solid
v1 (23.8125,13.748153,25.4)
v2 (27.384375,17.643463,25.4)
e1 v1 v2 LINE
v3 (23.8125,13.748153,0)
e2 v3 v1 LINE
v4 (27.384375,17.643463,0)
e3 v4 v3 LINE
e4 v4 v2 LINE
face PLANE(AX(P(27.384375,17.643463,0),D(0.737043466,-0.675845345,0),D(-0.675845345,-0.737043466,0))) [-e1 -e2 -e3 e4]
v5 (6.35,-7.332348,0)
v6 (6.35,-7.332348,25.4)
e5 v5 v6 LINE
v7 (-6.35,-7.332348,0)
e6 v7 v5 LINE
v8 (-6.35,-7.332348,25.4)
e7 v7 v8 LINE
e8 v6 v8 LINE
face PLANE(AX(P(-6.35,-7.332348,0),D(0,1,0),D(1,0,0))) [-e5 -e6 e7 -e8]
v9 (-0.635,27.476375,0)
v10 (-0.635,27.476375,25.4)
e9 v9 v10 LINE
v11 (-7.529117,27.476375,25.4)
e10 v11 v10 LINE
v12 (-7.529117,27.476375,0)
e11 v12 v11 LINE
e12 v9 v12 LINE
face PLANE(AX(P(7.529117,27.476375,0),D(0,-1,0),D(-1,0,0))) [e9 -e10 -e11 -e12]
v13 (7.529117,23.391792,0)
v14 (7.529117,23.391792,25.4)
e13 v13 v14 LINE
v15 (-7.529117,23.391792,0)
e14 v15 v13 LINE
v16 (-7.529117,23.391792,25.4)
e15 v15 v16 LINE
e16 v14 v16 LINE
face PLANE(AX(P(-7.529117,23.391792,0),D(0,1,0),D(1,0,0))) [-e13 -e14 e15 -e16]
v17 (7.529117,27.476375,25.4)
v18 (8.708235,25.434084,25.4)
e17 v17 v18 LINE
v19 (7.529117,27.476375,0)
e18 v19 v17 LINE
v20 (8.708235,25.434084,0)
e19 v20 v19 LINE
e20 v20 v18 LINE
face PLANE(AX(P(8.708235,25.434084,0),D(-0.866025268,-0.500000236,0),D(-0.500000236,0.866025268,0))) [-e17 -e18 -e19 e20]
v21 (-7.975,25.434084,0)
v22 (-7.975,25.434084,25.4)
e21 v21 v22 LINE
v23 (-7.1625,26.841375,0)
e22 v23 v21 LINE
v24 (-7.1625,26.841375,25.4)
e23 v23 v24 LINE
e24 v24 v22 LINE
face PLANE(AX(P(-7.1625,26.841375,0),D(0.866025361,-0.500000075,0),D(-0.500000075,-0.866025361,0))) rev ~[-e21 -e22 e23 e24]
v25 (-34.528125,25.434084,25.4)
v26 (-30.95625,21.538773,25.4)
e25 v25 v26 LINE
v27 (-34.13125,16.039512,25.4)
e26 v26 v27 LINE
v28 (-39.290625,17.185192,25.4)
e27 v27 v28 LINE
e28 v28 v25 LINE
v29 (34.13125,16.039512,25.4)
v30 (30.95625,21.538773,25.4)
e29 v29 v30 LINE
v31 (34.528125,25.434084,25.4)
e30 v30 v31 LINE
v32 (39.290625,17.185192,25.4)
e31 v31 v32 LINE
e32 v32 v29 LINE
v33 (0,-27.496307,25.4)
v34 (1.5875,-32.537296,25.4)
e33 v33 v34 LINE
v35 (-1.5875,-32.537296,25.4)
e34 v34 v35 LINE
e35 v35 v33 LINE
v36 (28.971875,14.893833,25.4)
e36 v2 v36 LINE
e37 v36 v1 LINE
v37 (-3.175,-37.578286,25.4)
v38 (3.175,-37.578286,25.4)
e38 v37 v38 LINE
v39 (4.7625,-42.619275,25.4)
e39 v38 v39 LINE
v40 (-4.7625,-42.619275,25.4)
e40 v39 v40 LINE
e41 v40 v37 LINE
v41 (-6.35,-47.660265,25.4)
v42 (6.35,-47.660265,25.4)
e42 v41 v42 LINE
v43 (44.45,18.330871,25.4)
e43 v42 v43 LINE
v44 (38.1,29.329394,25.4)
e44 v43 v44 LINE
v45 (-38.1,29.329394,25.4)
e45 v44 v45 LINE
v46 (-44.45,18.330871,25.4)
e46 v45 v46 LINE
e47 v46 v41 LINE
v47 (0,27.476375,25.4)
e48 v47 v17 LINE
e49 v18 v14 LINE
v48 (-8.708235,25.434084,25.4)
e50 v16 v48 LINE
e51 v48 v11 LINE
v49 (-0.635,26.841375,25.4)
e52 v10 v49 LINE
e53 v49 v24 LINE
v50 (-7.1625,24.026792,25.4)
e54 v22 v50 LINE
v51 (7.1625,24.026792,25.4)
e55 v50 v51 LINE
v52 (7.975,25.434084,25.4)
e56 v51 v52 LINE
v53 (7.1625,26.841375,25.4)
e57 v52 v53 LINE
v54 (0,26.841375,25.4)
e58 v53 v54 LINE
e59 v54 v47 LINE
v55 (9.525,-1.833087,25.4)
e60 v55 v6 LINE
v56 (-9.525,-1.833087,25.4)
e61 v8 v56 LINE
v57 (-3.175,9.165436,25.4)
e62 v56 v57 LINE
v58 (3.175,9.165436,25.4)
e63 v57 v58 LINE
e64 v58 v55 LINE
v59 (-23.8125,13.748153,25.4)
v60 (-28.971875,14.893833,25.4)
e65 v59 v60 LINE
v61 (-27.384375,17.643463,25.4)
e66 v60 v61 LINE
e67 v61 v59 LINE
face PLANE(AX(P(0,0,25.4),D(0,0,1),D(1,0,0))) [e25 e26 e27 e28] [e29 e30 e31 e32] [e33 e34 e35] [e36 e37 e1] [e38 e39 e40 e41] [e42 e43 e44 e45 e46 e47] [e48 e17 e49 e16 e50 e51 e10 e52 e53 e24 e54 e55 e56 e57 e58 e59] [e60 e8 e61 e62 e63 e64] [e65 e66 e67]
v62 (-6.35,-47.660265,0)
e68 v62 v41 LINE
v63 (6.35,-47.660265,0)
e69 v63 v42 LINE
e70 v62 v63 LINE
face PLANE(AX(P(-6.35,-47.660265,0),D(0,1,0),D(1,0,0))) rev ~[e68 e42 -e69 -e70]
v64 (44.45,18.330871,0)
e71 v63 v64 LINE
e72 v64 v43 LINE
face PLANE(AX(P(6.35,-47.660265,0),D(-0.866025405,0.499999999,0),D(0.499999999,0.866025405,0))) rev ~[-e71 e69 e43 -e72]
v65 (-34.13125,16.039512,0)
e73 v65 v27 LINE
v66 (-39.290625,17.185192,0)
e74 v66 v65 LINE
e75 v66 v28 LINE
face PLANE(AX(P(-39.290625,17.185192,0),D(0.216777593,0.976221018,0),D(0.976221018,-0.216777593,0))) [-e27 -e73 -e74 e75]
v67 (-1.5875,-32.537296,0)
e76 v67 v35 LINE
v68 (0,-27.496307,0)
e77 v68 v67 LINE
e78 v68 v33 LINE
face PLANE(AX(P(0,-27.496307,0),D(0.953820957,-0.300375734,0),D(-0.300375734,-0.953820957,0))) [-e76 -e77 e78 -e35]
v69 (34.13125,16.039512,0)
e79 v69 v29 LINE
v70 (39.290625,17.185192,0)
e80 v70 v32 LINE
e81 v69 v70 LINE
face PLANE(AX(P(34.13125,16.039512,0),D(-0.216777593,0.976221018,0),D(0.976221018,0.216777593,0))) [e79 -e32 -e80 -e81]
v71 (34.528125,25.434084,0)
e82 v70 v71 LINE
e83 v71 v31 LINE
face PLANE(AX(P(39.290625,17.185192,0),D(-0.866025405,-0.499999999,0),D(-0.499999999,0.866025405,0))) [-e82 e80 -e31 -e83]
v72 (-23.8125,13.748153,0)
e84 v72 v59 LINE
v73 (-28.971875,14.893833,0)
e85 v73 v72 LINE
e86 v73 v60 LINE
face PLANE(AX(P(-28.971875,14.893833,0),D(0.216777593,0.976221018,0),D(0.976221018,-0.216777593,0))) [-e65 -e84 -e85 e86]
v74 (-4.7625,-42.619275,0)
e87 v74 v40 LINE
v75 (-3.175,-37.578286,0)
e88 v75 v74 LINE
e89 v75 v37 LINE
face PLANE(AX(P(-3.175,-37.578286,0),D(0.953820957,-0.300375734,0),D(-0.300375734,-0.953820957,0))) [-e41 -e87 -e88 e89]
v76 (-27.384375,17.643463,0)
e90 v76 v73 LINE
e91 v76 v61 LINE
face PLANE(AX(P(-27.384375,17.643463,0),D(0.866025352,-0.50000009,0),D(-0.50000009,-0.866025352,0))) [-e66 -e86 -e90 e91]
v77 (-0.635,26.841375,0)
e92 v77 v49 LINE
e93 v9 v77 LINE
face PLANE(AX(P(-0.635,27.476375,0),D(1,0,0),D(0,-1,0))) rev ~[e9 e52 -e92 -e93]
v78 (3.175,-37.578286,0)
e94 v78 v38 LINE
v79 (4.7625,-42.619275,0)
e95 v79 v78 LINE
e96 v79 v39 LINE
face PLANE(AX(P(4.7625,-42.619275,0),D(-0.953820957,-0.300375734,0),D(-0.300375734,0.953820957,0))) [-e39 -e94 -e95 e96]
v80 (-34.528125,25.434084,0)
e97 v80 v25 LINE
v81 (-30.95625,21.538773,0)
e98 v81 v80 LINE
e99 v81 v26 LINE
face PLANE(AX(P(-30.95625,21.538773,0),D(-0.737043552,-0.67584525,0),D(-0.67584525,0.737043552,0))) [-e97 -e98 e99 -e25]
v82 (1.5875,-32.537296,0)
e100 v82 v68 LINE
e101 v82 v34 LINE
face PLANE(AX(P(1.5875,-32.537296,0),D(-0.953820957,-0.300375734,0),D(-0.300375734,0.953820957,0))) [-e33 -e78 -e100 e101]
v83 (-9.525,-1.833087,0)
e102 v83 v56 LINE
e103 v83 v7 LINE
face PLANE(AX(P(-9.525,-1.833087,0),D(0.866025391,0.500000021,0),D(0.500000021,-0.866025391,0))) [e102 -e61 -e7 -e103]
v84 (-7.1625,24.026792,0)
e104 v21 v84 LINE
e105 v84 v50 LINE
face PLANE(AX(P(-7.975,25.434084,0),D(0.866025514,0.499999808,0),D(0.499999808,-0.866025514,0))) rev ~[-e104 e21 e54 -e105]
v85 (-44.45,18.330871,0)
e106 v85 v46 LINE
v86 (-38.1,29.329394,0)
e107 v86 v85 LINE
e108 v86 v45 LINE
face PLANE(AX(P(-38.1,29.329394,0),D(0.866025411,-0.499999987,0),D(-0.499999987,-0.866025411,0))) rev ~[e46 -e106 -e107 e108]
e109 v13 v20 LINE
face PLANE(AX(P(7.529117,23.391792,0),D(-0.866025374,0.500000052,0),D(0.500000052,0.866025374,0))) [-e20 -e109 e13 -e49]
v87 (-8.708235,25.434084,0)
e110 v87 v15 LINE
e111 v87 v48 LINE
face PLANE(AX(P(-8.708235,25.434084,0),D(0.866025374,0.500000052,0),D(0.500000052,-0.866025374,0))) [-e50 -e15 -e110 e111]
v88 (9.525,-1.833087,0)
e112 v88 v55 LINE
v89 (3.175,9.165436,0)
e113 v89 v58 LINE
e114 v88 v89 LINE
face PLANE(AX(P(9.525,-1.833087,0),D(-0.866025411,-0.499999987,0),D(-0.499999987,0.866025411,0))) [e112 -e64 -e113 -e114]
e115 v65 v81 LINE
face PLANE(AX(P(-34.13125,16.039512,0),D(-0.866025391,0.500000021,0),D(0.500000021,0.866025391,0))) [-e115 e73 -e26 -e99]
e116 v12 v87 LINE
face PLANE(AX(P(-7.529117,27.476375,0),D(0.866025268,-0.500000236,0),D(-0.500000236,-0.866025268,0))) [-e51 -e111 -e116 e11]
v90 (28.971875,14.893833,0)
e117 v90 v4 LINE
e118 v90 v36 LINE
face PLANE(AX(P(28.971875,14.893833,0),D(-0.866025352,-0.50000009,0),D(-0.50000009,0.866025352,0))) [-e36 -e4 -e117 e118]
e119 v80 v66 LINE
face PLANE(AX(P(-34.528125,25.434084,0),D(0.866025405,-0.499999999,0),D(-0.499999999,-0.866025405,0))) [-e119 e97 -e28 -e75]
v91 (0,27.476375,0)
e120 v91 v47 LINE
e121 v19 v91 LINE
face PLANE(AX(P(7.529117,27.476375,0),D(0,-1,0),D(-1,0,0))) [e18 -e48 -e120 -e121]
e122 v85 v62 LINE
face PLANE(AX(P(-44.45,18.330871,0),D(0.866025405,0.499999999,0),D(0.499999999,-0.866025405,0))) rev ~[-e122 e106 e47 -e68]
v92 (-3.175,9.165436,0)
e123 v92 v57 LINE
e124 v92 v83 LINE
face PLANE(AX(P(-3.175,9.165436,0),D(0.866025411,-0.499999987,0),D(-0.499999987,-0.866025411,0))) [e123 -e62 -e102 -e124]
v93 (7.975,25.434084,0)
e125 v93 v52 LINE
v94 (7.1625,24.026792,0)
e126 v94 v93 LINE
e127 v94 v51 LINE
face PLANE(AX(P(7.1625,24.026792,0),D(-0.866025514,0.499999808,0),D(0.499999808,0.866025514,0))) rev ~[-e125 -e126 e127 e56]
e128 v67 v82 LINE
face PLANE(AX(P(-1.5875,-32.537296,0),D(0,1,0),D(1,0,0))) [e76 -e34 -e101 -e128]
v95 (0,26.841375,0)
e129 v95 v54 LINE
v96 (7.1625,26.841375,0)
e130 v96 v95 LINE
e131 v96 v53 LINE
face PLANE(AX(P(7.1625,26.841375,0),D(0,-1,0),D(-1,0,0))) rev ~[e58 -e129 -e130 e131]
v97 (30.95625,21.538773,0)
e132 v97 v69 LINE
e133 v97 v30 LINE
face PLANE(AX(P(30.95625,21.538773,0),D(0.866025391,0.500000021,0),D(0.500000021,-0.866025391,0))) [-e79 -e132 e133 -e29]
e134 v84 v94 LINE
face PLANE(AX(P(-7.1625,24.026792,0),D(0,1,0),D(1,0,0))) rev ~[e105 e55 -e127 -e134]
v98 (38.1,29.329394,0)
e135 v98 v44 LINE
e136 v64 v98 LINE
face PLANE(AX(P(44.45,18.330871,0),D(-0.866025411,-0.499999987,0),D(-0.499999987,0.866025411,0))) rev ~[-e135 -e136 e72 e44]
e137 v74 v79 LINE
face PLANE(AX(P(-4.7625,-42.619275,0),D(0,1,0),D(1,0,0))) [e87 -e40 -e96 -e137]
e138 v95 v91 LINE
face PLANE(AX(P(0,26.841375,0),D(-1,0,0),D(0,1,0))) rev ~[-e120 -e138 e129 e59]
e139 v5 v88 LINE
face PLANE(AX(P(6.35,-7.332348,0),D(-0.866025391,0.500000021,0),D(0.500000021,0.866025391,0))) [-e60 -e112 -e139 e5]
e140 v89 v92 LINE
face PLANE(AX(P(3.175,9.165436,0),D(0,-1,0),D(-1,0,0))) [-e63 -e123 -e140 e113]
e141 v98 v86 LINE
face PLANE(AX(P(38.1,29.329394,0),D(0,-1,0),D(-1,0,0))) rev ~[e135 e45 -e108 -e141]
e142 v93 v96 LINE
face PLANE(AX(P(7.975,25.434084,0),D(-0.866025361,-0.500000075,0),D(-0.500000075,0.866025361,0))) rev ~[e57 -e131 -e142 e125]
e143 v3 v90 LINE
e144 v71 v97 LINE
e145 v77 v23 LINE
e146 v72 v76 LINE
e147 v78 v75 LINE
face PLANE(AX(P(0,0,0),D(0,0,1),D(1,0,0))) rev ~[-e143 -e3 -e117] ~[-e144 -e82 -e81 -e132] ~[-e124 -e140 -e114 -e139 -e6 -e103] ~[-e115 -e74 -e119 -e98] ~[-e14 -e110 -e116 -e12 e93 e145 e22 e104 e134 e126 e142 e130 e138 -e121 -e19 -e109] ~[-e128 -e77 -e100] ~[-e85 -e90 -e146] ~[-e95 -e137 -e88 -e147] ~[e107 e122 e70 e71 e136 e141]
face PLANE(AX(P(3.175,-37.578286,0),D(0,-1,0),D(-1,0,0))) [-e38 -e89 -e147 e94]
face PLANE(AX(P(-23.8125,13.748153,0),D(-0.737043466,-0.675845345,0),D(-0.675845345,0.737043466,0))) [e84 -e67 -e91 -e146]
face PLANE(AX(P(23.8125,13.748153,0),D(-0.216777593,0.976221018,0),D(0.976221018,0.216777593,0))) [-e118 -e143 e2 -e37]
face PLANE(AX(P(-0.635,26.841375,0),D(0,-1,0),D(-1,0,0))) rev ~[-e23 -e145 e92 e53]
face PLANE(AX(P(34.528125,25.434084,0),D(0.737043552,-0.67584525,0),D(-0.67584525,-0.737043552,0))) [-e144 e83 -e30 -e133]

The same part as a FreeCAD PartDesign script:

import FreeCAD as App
import Part
import Sketcher

V = App.Vector
Q = App.Units.Quantity


def add_polygon(sketch, points):
    """Adds a closed chain of lines whose ends are joined by coincident constraints."""
    first, n = sketch.GeometryCount, len(points)
    for a, b in zip(points, points[1:] + points[:1]):
        sketch.addGeometry(Part.LineSegment(App.Vector(*a, 0), App.Vector(*b, 0)), False)
    for i in range(n):
        sketch.addConstraint(Sketcher.Constraint("Coincident", first + i, 2, first + (i + 1) % n, 1))

doc = App.newDocument("Part")
body = doc.addObject("PartDesign::Body", "Body")

sketch1 = body.newObject("Sketcher::SketchObject", "Sketch")
sketch1.AttachmentSupport = (doc.getObject("XY_Plane"), [""])
sketch1.MapMode = "FlatFace"
add_polygon(sketch1, [(38, 29), (-38, 29), (-44, 18), (-6, -48), (6, -48), (44, 18)])
sketch1.addConstraint([
    Sketcher.Constraint("Horizontal", 0),
    Sketcher.Constraint("Horizontal", 3),
    Sketcher.Constraint("Symmetric", 1, 2, 4, 2, -2),
    Sketcher.Constraint("Parallel", 1, 4),
    Sketcher.Constraint("Parallel", 2, 5),
    Sketcher.Constraint("Equal", 2, 4),
    Sketcher.Constraint("DistanceX", 0, 2, 0, 1, Q("3 in")),
    Sketcher.Constraint("Distance", 2, Q("3 in")),
    Sketcher.Constraint("DistanceX", 3, 1, 3, 2, Q("0.5 in")),
    Sketcher.Constraint("Angle", 1, Q("-119.999999 deg")),
    Sketcher.Constraint("DistanceY", -1, 1, 1, 2, 18.330871),
])
pad1 = body.newObject("PartDesign::Pad", "Pad")
pad1.Profile = sketch1
pad1.Length = Q("1 in")

sketch2 = body.newObject("Sketcher::SketchObject", "Sketch001")
sketch2.AttachmentSupport = (doc.getObject("XY_Plane"), [""])
sketch2.MapMode = "FlatFace"
add_polygon(sketch2, [(-3, 9), (-10, -2), (-6, -7), (6, -7), (10, -2), (3, 9)])
sketch2.addConstraint([
    Sketcher.Constraint("Horizontal", 2),
    Sketcher.Constraint("Horizontal", 5),
    Sketcher.Constraint("Symmetric", 0, 2, 3, 2, -2),
    Sketcher.Constraint("Parallel", 0, 3),
    Sketcher.Constraint("Parallel", 1, 4),
    Sketcher.Constraint("Equal", 1, 3),
    Sketcher.Constraint("DistanceX", 2, 1, 2, 2, Q("0.5 in")),
    Sketcher.Constraint("Angle", 0, Q("-119.999999 deg")),
    Sketcher.Constraint("Distance", 0, Q("0.5 in")),
    Sketcher.Constraint("DistanceX", 5, 2, 5, 1, Q("0.25 in")),
    Sketcher.Constraint("DistanceY", 0, 2, -1, 1, 1.833087),
])
pocket1 = body.newObject("PartDesign::Pocket", "Pocket")
pocket1.Profile = sketch2
pocket1.Type = "ThroughAll"
pocket1.Reversed = True

sketch3 = body.newObject("Sketcher::SketchObject", "Sketch002")
sketch3.AttachmentSupport = (doc.getObject("XY_Plane"), [""])
sketch3.MapMode = "FlatFace"
add_polygon(sketch3, [(39.3, 17.2), (34.5, 25.4), (31, 21.5), (34.1, 16)])
add_polygon(sketch3, [(29, 14.9), (27.4, 17.6), (23.8, 13.7)])
add_polygon(sketch3, [(-31, 21.5), (-34.5, 25.4), (-39.3, 17.2), (-34.1, 16)])
add_polygon(sketch3, [(-27.4, 17.6), (-29, 14.9), (-23.8, 13.7)])
add_polygon(sketch3, [(0, -27.5), (-1.6, -32.5), (1.6, -32.5)])
add_polygon(sketch3, [(3.2, -37.6), (-3.2, -37.6), (-4.8, -42.6), (4.8, -42.6)])
add_polygon(sketch3, [(-7.5, 27.5), (-8.7, 25.4), (-7.5, 23.4), (7.5, 23.4), (8.7, 25.4), (7.5, 27.5)])
sketch3.addConstraint([
    Sketcher.Constraint("Horizontal", 15),
    Sketcher.Constraint("Horizontal", 17),
    Sketcher.Constraint("Horizontal", 19),
    Sketcher.Constraint("Horizontal", 23),
    Sketcher.Constraint("Horizontal", 26),
    Sketcher.Constraint("Symmetric", 0, 2, 7, 2, -2),
    Sketcher.Constraint("Symmetric", 3, 2, 8, 2, -2),
    Sketcher.Constraint("Symmetric", 2, 2, 9, 2, -2),
    Sketcher.Constraint("Symmetric", 1, 2, 10, 2, -2),
    Sketcher.Constraint("Symmetric", 6, 2, 11, 2, -2),
    Sketcher.Constraint("Symmetric", 5, 2, 12, 2, -2),
    Sketcher.Constraint("Symmetric", 4, 2, 13, 2, -2),
    Sketcher.Constraint("Symmetric", 21, 2, 24, 2, -2),
    Sketcher.Constraint("PointOnObject", 16, 2, -2),
    Sketcher.Constraint("Parallel", 0, 2),
    Sketcher.Constraint("Parallel", 2, 4),
    Sketcher.Constraint("Parallel", 1, 5),
    Sketcher.Constraint("Parallel", 3, 6),
    Sketcher.Constraint("Parallel", 14, 18),
    Sketcher.Constraint("Parallel", 16, 20),
    Sketcher.Constraint("Parallel", 11, 21),
    Sketcher.Constraint("Parallel", 4, 22),
    Sketcher.Constraint("Parallel", 21, 24),
    Sketcher.Constraint("Parallel", 22, 25),
    Sketcher.Constraint("Horizontal", 7, 2, 21, 2),
    Sketcher.Constraint("Vertical", 23, 2, 25, 2),
    Sketcher.Constraint("Equal", 1, 3),
    Sketcher.Constraint("Equal", 3, 5),
    Sketcher.Constraint("Equal", 13, 14),
    Sketcher.Constraint("Equal", 14, 16),
    Sketcher.Constraint("Equal", 16, 18),
    Sketcher.Constraint("Angle", 0, Q("120 deg")),
    Sketcher.Constraint("DistanceX", 14, 2, 5, 2, Q("1 in")),
    Sketcher.Constraint("DistanceX", 17, 2, 17, 1, Q("0.25 in")),
    Sketcher.Constraint("DistanceX", 7, 2, 6, 2, Q("2.5 in")),
    Sketcher.Constraint("Distance", 2, Q("0.25 in")),
    Sketcher.Constraint("DistanceX", 15, 1, 15, 2, Q("0.125 in")),
    Sketcher.Constraint("DistanceX", 18, 2, 15, 2, Q("0.25 in")),
    Sketcher.Constraint("Distance", 0, Q("0.375 in")),
    Sketcher.Constraint("DistanceX", -1, 1, 0, 2, Q("1.359375 in")),
    Sketcher.Constraint("DistanceX", 23, 1, 23, 2, 15.058234),
    Sketcher.Constraint("DistanceY", -1, 1, 2, 2, 16.039512),
    Sketcher.Constraint("DistanceY", -1, 1, 22, 2, 23.391792),
    Sketcher.Constraint("DistanceY", 4, 2, 1, 2, 3.89531),
    Sketcher.Constraint("DistanceY", 14, 2, 12, 2, 46.285449),
    Sketcher.Constraint("DistanceY", 17, 2, 14, 2, 5.04099),
])
pocket2 = body.newObject("PartDesign::Pocket", "Pocket001")
pocket2.Profile = sketch3
pocket2.Type = "ThroughAll"
pocket2.Reversed = True

sketch4 = body.newObject("Sketcher::SketchObject", "Sketch003")
sketch4.AttachmentSupport = (doc.getObject("XY_Plane"), [""])
sketch4.MapMode = "FlatFace"
add_polygon(sketch4, [(-7.2, 26.8), (-8, 25.4), (-7.2, 24), (7.2, 24), (8, 25.4), (7.2, 26.8), (0, 26.8), (0, 27.5), (-0.6, 27.5), (-0.6, 26.8)])
sketch4.addConstraint([
    Sketcher.Constraint("Horizontal", 2),
    Sketcher.Constraint("Horizontal", 5),
    Sketcher.Constraint("Vertical", 6),
    Sketcher.Constraint("Horizontal", 7),
    Sketcher.Constraint("Vertical", 8),
    Sketcher.Constraint("Horizontal", 9),
    Sketcher.Constraint("Symmetric", 0, 2, 3, 2, -2),
    Sketcher.Constraint("Symmetric", 4, 2, 9, 2, -2),
    Sketcher.Constraint("PointOnObject", 5, 2, -2),
    Sketcher.Constraint("Parallel", 0, 3),
    Sketcher.Constraint("Parallel", 1, 4),
    Sketcher.Constraint("Vertical", 2, 2, 4, 2),
    Sketcher.Constraint("Equal", 7, 6),
    Sketcher.Constraint("Angle", 0, Q("-120.000005 deg")),
    Sketcher.Constraint("DistanceX", 7, 2, 7, 1, Q("0.025 in")),
    Sketcher.Constraint("DistanceX", 2, 1, 2, 2, 14.325),
    Sketcher.Constraint("Distance", 0, 1.625),
    Sketcher.Constraint("DistanceY", -1, 1, 0, 2, 25.434084),
])
pad2 = body.newObject("PartDesign::Pad", "Pad001")
pad2.Profile = sketch4
pad2.Length = Q("1 in")

doc.recompute()
